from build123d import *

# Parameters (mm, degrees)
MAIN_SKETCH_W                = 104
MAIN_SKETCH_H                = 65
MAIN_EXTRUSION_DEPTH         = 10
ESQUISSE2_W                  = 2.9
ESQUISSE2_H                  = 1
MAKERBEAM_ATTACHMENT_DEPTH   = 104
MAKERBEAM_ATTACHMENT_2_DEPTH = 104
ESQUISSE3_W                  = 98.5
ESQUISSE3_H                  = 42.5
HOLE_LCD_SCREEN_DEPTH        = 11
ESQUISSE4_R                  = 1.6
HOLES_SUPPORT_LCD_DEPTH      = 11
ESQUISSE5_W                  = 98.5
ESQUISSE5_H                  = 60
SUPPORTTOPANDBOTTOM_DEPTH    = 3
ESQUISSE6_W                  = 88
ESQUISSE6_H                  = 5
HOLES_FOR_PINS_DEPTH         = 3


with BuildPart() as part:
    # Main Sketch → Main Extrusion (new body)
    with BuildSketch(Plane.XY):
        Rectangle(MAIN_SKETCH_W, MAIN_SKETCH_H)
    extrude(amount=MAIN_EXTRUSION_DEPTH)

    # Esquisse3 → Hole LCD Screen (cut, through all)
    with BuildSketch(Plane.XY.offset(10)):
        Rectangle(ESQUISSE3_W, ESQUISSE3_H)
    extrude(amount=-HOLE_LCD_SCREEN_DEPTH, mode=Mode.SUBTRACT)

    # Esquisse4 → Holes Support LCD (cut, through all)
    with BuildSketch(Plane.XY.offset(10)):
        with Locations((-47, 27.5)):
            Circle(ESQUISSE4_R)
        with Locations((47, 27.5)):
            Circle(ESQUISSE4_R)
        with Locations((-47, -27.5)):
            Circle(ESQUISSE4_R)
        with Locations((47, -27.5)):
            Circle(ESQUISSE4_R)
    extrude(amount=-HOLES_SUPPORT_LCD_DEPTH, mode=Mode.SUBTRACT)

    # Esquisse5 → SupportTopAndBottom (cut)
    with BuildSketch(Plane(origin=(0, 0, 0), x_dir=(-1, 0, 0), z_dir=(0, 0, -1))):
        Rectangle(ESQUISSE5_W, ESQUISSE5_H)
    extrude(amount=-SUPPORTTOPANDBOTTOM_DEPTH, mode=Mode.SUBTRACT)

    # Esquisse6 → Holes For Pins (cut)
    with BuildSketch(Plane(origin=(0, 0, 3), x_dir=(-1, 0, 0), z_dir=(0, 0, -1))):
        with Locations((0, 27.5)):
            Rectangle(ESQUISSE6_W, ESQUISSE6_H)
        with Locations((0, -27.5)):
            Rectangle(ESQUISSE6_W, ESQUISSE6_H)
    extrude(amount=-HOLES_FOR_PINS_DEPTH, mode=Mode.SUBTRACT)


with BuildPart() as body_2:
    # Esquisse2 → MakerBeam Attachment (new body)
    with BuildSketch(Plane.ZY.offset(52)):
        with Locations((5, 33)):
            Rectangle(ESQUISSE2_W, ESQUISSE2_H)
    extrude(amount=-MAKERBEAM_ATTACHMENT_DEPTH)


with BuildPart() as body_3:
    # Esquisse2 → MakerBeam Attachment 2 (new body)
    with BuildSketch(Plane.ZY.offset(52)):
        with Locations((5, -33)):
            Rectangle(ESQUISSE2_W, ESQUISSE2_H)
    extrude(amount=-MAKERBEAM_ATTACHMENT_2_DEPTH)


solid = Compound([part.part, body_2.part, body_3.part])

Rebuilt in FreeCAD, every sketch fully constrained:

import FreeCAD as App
import Part
import Sketcher

V = App.Vector
Q = App.Units.Quantity

doc = App.newDocument("Part")
body = doc.addObject("PartDesign::Body", "Body")

sketch1 = body.newObject("Sketcher::SketchObject", "Sketch")
sketch1.AttachmentSupport = (doc.getObject("XY_Plane"), [""])
sketch1.MapMode = "FlatFace"
sketch1.addGeometry([
    Part.LineSegment(V(-52, 32.5, 0), V(-52, -32.5, 0)),
    Part.LineSegment(V(-52, -32.5, 0), V(52, -32.5, 0)),
    Part.LineSegment(V(52, -32.5, 0), V(52, 32.5, 0)),
    Part.LineSegment(V(52, 32.5, 0), V(-52, 32.5, 0)),
], False)
sketch1.addConstraint([
    Sketcher.Constraint("Coincident", 0, 2, 1, 1),
    Sketcher.Constraint("Coincident", 1, 2, 2, 1),
    Sketcher.Constraint("Coincident", 2, 2, 3, 1),
    Sketcher.Constraint("Coincident", 3, 2, 0, 1),
    Sketcher.Constraint("Vertical", 0),
    Sketcher.Constraint("Horizontal", 1),
    Sketcher.Constraint("Vertical", 2),
    Sketcher.Constraint("Horizontal", 3),
    Sketcher.Constraint("Symmetric", 0, 2, 2, 2, -1, 1),
    Sketcher.Constraint("DistanceX", 1, 1, 1, 2, Q("104 mm")),
    Sketcher.Constraint("DistanceY", 0, 2, 0, 1, Q("65 mm")),
])
pad1 = body.newObject("PartDesign::Pad", "Pad")
pad1.Profile = sketch1
pad1.Length = 10

sketch2 = body.newObject("Sketcher::SketchObject", "Sketch001")
sketch2.AttachmentSupport = (doc.getObject("XY_Plane"), [""])
sketch2.MapMode = "FlatFace"
sketch2.AttachmentOffset = App.Placement(V(0, 0, 10), App.Rotation())
sketch2.addGeometry([
    Part.LineSegment(V(-49.25, 21.25, 0), V(-49.25, -21.25, 0)),
    Part.LineSegment(V(-49.25, -21.25, 0), V(49.25, -21.25, 0)),
    Part.LineSegment(V(49.25, -21.25, 0), V(49.25, 21.25, 0)),
    Part.LineSegment(V(49.25, 21.25, 0), V(-49.25, 21.25, 0)),
], False)
sketch2.addConstraint([
    Sketcher.Constraint("Coincident", 0, 2, 1, 1),
    Sketcher.Constraint("Coincident", 1, 2, 2, 1),
    Sketcher.Constraint("Coincident", 2, 2, 3, 1),
    Sketcher.Constraint("Coincident", 3, 2, 0, 1),
    Sketcher.Constraint("Vertical", 0),
    Sketcher.Constraint("Horizontal", 1),
    Sketcher.Constraint("Vertical", 2),
    Sketcher.Constraint("Horizontal", 3),
    Sketcher.Constraint("Symmetric", 0, 2, 2, 2, -1, 1),
    Sketcher.Constraint("DistanceX", 1, 1, 1, 2, Q("98.5 mm")),
    Sketcher.Constraint("DistanceY", 0, 2, 0, 1, Q("42.5 mm")),
])
pocket1 = body.newObject("PartDesign::Pocket", "Pocket")
pocket1.Profile = sketch2
pocket1.Type = "ThroughAll"

sketch3 = body.newObject("Sketcher::SketchObject", "Sketch002")
sketch3.AttachmentSupport = (doc.getObject("XY_Plane"), [""])
sketch3.MapMode = "FlatFace"
sketch3.AttachmentOffset = App.Placement(V(0, 0, 10), App.Rotation())
sketch3.addGeometry([
    Part.Circle(V(-47, 27.5, 0), V(0, 0, 1), 1.6),
    Part.Circle(V(47, 27.5, 0), V(0, 0, 1), 1.6),
    Part.Circle(V(-47, -27.5, 0), V(0, 0, 1), 1.6),
    Part.Circle(V(47, -27.5, 0), V(0, 0, 1), 1.6),
], False)
sketch3.addConstraint([
    Sketcher.Constraint("Equal", 0, 1),
    Sketcher.Constraint("Equal", 1, 2),
    Sketcher.Constraint("Equal", 2, 3),
    Sketcher.Constraint("Symmetric", 1, 3, 2, 3, -1, 1),
    Sketcher.Constraint("Symmetric", 0, 3, 3, 3, -1, 1),
    Sketcher.Constraint("Symmetric", 0, 3, 1, 3, -2),
    Sketcher.Constraint("Diameter", 0, Q("3.2 mm")),
    Sketcher.Constraint("DistanceX", 0, 3, -1, 1, Q("47 mm")),
    Sketcher.Constraint("DistanceY", 2, 3, 0, 3, Q("55 mm")),
])
pocket2 = body.newObject("PartDesign::Pocket", "Pocket001")
pocket2.Profile = sketch3
pocket2.Type = "ThroughAll"

sketch4 = body.newObject("Sketcher::SketchObject", "Sketch003")
sketch4.AttachmentSupport = (doc.getObject("XY_Plane"), [""])
sketch4.MapMode = "FlatFace"
sketch4.addGeometry([
    Part.LineSegment(V(49.25, 30, 0), V(49.25, -30, 0)),
    Part.LineSegment(V(49.25, -30, 0), V(-49.25, -30, 0)),
    Part.LineSegment(V(-49.25, -30, 0), V(-49.25, 30, 0)),
    Part.LineSegment(V(-49.25, 30, 0), V(49.25, 30, 0)),
], False)
sketch4.addConstraint([
    Sketcher.Constraint("Coincident", 0, 2, 1, 1),
    Sketcher.Constraint("Coincident", 1, 2, 2, 1),
    Sketcher.Constraint("Coincident", 2, 2, 3, 1),
    Sketcher.Constraint("Coincident", 3, 2, 0, 1),
    Sketcher.Constraint("Vertical", 0),
    Sketcher.Constraint("Horizontal", 1),
    Sketcher.Constraint("Vertical", 2),
    Sketcher.Constraint("Horizontal", 3),
    Sketcher.Constraint("Symmetric", 0, 2, 2, 2, -1, 1),
    Sketcher.Constraint("DistanceY", 0, 2, 0, 1, Q("60 mm")),
    Sketcher.Constraint("DistanceX", 1, 2, 1, 1, Q("98.5 mm")),
])
pocket3 = body.newObject("PartDesign::Pocket", "Pocket002")
pocket3.Profile = sketch4
pocket3.Length = 3
pocket3.Reversed = True

sketch5 = body.newObject("Sketcher::SketchObject", "Sketch004")
sketch5.AttachmentSupport = (doc.getObject("XY_Plane"), [""])
sketch5.MapMode = "FlatFace"
sketch5.AttachmentOffset = App.Placement(V(0, 0, 3), App.Rotation())
sketch5.addGeometry([
    Part.LineSegment(V(44, 30, 0), V(44, 25, 0)),
    Part.LineSegment(V(44, 25, 0), V(-44, 25, 0)),
    Part.LineSegment(V(-44, 25, 0), V(-44, 30, 0)),
    Part.LineSegment(V(-44, 30, 0), V(44, 30, 0)),
    Part.LineSegment(V(44, -25, 0), V(44, -30, 0)),
    Part.LineSegment(V(44, -30, 0), V(-44, -30, 0)),
    Part.LineSegment(V(-44, -30, 0), V(-44, -25, 0)),
    Part.LineSegment(V(-44, -25, 0), V(44, -25, 0)),
], False)
sketch5.addConstraint([
    Sketcher.Constraint("Coincident", 0, 2, 1, 1),
    Sketcher.Constraint("Coincident", 1, 2, 2, 1),
    Sketcher.Constraint("Coincident", 2, 2, 3, 1),
    Sketcher.Constraint("Coincident", 3, 2, 0, 1),
    Sketcher.Constraint("Coincident", 4, 2, 5, 1),
    Sketcher.Constraint("Coincident", 5, 2, 6, 1),
    Sketcher.Constraint("Coincident", 6, 2, 7, 1),
    Sketcher.Constraint("Coincident", 7, 2, 4, 1),
    Sketcher.Constraint("Vertical", 0),
    Sketcher.Constraint("Horizontal", 1),
    Sketcher.Constraint("Vertical", 2),
    Sketcher.Constraint("Horizontal", 3),
    Sketcher.Constraint("Vertical", 4),
    Sketcher.Constraint("Horizontal", 5),
    Sketcher.Constraint("Vertical", 6),
    Sketcher.Constraint("Horizontal", 7),
    Sketcher.Constraint("Symmetric", 2, 2, 4, 2, -1, 1),
    Sketcher.Constraint("Symmetric", 0, 2, 6, 2, -1, 1),
    Sketcher.Constraint("Vertical", 3, 2, 4, 2),
    Sketcher.Constraint("DistanceX", 1, 2, 1, 1, Q("88 mm")),
    Sketcher.Constraint("DistanceY", 0, 2, 0, 1, Q("5 mm")),
    Sketcher.Constraint("DistanceY", -1, 1, 0, 2, Q("25 mm")),
])
pocket4 = body.newObject("PartDesign::Pocket", "Pocket003")
pocket4.Profile = sketch5
pocket4.Length = 3
pocket4.Reversed = True
body2 = doc.addObject("PartDesign::Body", "Body001")

sketch6 = body2.newObject("Sketcher::SketchObject", "Sketch005")
sketch6.AttachmentSupport = (doc.getObject("YZ_Plane001"), [""])
sketch6.MapMode = "FlatFace"
sketch6.AttachmentOffset = App.Placement(V(0, 0, -52), App.Rotation())
sketch6.addGeometry([
    Part.LineSegment(V(33.5, 3.55, 0), V(32.5, 3.55, 0)),
    Part.LineSegment(V(32.5, 3.55, 0), V(32.5, 6.45, 0)),
    Part.LineSegment(V(32.5, 6.45, 0), V(33.5, 6.45, 0)),
    Part.LineSegment(V(33.5, 6.45, 0), V(33.5, 3.55, 0)),
], False)
sketch6.addConstraint([
    Sketcher.Constraint("Coincident", 0, 2, 1, 1),
    Sketcher.Constraint("Coincident", 1, 2, 2, 1),
    Sketcher.Constraint("Coincident", 2, 2, 3, 1),
    Sketcher.Constraint("Coincident", 3, 2, 0, 1),
    Sketcher.Constraint("Horizontal", 0),
    Sketcher.Constraint("Vertical", 1),
    Sketcher.Constraint("Horizontal", 2),
    Sketcher.Constraint("Vertical", 3),
    Sketcher.Constraint("DistanceX", 0, 2, 0, 1, Q("1 mm")),
    Sketcher.Constraint("DistanceY", 1, 1, 1, 2, Q("2.9 mm")),
    Sketcher.Constraint("DistanceX", -1, 1, 0, 2, Q("32.5 mm")),
    Sketcher.Constraint("DistanceY", -1, 1, 0, 2, Q("3.55 mm")),
])
pad2 = body2.newObject("PartDesign::Pad", "Pad001")
pad2.Profile = sketch6
pad2.Length = 104
body3 = doc.addObject("PartDesign::Body", "Body002")

sketch7 = body3.newObject("Sketcher::SketchObject", "Sketch006")
sketch7.AttachmentSupport = (doc.getObject("YZ_Plane002"), [""])
sketch7.MapMode = "FlatFace"
sketch7.AttachmentOffset = App.Placement(V(0, 0, -52), App.Rotation())
sketch7.addGeometry([
    Part.LineSegment(V(-32.5, 3.55, 0), V(-33.5, 3.55, 0)),
    Part.LineSegment(V(-33.5, 3.55, 0), V(-33.5, 6.45, 0)),
    Part.LineSegment(V(-33.5, 6.45, 0), V(-32.5, 6.45, 0)),
    Part.LineSegment(V(-32.5, 6.45, 0), V(-32.5, 3.55, 0)),
], False)
sketch7.addConstraint([
    Sketcher.Constraint("Coincident", 0, 2, 1, 1),
    Sketcher.Constraint("Coincident", 1, 2, 2, 1),
    Sketcher.Constraint("Coincident", 2, 2, 3, 1),
    Sketcher.Constraint("Coincident", 3, 2, 0, 1),
    Sketcher.Constraint("Horizontal", 0),
    Sketcher.Constraint("Vertical", 1),
    Sketcher.Constraint("Horizontal", 2),
    Sketcher.Constraint("Vertical", 3),
    Sketcher.Constraint("DistanceX", 0, 2, 0, 1, Q("1 mm")),
    Sketcher.Constraint("DistanceY", 1, 1, 1, 2, Q("2.9 mm")),
    Sketcher.Constraint("DistanceX", 0, 2, -1, 1, Q("33.5 mm")),
    Sketcher.Constraint("DistanceY", -1, 1, 0, 2, Q("3.55 mm")),
])
pad3 = body3.newObject("PartDesign::Pad", "Pad002")
pad3.Profile = sketch7
pad3.Length = 104

doc.recompute()
